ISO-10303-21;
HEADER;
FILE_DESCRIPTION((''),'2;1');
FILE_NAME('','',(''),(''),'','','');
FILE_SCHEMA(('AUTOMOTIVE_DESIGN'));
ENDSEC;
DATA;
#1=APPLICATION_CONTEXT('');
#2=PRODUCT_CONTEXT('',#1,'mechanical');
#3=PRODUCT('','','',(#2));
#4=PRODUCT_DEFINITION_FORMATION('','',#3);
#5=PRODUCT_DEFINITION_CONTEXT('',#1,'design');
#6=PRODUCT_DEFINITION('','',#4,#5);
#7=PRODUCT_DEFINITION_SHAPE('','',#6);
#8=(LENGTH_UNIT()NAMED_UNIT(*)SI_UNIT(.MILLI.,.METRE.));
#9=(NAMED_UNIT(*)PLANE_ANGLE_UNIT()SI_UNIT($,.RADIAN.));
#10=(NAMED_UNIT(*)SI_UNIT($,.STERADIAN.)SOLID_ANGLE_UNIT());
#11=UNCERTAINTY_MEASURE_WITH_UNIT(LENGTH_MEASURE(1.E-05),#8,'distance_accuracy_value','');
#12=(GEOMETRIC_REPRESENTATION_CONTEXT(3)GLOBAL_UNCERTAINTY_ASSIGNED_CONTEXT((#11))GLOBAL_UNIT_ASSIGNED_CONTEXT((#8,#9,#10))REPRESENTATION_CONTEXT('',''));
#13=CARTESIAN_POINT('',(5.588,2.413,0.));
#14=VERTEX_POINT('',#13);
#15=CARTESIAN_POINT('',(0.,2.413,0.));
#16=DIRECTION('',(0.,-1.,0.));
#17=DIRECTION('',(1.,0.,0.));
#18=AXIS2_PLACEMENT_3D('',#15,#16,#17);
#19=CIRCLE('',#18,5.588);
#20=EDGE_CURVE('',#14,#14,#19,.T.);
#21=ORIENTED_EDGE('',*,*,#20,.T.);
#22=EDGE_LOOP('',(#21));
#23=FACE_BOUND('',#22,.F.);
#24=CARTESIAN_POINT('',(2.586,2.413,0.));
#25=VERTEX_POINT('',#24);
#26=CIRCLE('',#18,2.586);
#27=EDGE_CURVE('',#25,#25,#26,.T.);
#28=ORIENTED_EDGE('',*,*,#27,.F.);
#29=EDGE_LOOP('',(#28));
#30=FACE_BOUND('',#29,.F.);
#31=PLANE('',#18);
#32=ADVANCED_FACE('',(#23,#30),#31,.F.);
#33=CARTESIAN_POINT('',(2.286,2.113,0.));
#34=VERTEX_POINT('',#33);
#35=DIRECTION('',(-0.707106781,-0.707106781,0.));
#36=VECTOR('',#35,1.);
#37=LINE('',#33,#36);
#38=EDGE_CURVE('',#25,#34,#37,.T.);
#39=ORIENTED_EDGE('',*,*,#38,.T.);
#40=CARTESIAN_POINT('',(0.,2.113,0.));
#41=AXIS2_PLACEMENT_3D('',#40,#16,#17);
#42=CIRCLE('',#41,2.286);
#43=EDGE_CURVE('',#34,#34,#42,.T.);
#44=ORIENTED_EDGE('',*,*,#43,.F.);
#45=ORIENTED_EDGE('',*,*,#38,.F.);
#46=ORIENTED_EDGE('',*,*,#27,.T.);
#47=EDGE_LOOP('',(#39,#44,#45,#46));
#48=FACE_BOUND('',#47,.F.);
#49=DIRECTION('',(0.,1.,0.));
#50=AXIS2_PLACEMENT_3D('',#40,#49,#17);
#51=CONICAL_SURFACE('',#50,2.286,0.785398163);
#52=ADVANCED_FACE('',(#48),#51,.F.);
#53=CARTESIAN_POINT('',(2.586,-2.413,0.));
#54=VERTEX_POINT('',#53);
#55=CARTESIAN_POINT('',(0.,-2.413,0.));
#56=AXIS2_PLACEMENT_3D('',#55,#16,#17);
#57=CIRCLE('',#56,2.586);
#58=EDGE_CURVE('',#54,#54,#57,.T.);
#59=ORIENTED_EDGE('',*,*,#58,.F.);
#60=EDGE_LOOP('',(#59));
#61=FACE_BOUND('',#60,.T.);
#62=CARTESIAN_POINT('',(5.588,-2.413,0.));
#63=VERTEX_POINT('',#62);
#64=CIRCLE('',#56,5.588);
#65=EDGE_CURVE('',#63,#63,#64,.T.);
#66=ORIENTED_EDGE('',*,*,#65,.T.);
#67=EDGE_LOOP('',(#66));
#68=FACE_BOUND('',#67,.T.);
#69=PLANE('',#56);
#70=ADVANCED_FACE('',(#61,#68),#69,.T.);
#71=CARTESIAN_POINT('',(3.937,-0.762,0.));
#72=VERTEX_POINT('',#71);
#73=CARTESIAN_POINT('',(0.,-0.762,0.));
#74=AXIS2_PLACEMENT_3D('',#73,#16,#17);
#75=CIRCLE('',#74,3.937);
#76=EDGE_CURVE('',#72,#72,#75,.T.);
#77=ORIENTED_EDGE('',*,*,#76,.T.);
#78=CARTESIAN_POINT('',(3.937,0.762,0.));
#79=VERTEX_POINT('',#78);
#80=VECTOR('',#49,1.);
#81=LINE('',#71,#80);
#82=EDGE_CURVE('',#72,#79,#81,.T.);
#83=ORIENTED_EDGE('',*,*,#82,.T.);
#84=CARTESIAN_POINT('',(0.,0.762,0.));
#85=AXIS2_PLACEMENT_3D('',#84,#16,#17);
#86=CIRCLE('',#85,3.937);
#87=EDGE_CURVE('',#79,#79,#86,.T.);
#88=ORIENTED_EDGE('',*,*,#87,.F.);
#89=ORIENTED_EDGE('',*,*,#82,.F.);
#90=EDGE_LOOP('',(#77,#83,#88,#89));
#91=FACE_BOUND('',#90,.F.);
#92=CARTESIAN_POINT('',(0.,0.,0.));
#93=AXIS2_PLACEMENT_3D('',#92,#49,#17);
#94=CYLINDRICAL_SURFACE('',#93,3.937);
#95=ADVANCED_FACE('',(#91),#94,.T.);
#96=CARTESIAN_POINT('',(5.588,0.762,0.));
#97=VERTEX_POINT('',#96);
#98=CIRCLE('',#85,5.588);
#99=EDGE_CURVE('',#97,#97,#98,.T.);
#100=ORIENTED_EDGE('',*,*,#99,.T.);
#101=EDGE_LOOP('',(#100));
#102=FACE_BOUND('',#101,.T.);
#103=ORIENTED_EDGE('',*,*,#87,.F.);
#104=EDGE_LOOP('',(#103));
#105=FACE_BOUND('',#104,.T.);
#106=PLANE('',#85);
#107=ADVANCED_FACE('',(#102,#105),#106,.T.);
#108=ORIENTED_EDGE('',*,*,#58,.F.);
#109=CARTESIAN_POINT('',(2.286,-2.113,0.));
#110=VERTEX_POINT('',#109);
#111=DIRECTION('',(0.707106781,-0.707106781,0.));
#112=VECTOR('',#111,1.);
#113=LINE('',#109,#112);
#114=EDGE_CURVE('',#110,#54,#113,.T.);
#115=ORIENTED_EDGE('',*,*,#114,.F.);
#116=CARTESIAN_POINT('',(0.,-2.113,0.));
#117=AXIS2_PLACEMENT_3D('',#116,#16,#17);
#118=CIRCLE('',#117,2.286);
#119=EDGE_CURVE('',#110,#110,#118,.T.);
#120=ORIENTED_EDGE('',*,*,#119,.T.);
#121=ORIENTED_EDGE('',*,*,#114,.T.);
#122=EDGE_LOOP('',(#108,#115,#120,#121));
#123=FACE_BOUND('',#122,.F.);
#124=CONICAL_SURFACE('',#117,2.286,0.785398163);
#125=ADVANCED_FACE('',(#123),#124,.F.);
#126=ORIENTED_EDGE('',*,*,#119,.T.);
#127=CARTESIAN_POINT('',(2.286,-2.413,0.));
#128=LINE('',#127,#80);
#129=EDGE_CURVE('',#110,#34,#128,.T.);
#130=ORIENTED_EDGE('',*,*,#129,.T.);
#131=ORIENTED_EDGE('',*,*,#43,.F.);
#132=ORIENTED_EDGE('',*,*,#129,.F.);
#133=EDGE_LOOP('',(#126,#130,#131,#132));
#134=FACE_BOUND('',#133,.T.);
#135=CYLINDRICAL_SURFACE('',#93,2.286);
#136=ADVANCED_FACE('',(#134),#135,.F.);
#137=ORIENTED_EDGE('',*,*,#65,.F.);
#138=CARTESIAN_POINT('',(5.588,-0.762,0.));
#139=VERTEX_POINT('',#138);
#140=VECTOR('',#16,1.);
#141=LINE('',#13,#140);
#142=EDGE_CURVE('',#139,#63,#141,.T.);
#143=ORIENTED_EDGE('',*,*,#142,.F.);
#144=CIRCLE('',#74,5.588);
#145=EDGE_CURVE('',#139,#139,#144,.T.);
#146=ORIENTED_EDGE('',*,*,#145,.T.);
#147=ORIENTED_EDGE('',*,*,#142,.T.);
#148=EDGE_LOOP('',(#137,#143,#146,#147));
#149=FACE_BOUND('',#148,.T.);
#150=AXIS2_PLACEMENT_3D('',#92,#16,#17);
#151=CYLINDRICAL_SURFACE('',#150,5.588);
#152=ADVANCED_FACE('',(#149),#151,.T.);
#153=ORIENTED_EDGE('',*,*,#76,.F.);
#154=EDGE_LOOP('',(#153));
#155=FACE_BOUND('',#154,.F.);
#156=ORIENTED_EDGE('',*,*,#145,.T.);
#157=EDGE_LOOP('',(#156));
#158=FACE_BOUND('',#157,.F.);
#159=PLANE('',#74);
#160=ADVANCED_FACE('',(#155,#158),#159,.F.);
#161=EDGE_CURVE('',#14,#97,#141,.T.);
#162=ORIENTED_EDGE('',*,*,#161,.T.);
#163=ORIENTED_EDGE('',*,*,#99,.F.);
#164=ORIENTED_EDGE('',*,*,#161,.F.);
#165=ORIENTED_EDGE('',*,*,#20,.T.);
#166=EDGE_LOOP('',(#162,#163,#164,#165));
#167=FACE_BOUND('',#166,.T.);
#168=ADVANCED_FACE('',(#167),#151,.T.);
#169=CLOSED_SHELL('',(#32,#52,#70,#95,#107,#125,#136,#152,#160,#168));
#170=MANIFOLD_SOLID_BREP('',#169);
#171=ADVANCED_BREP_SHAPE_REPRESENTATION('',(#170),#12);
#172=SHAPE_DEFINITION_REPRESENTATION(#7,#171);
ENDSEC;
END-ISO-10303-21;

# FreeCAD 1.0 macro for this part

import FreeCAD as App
import Part
import Sketcher
from FreeCAD import Vector
Q = App.Units.Quantity


def edges_at(feature, points):
    """Names of the edges that pass closest to the given points."""
    edges = feature.Shape.Edges
    near = lambda p: min(range(len(edges)), key=lambda i: edges[i].distToShape(Part.Vertex(*p))[0])
    return sorted({f"Edge{near(p) + 1}" for p in points})

doc = App.newDocument("Part")
body = doc.addObject("PartDesign::Body", "Body")

sketch1 = body.newObject("Sketcher::SketchObject", "Sketch")
sketch1.AttachmentSupport = (doc.getObject("XZ_Plane"), [""])
sketch1.MapMode = "FlatFace"
sketch1.addGeometry([
    Part.Circle(Vector(0, 0, 0), Vector(0, 0, 1), 5.6),
    Part.Circle(Vector(0, 0, 0), Vector(0, 0, 1), 2.3),
], False)
sketch1.addConstraint([
    Sketcher.Constraint("Coincident", 0, 3, -1, 1),
    Sketcher.Constraint("Coincident", 1, 3, -1, 1),
    Sketcher.Constraint("Diameter", 0, Q("0.44 in")),
    Sketcher.Constraint("Diameter", 1, Q("0.18 in")),
])
pad1 = body.newObject("PartDesign::Pad", "Pad")
pad1.Profile = sketch1
pad1.Length = Q("0.19 in")
pad1.Midplane = True

sketch2 = body.newObject("Sketcher::SketchObject", "Sketch001")
sketch2.AttachmentSupport = (doc.getObject("XZ_Plane"), [""])
sketch2.MapMode = "FlatFace"
sketch2.addGeometry([
    Part.Circle(Vector(0, 0, 0), Vector(0, 0, 1), 5.6),
    Part.Circle(Vector(0, 0, 0), Vector(0, 0, 1), 3.9),
], False)
sketch2.addConstraint([
    Sketcher.Constraint("Coincident", 0, 3, -1, 1),
    Sketcher.Constraint("Coincident", 1, 3, -1, 1),
    Sketcher.Constraint("Diameter", 0, Q("0.44 in")),
    Sketcher.Constraint("Diameter", 1, Q("0.31 in")),
])
pocket1 = body.newObject("PartDesign::Pocket", "Pocket")
pocket1.Profile = sketch2
pocket1.Length = Q("0.06 in")
pocket1.Midplane = True
doc.recompute()

chamfer = body.newObject("PartDesign::Chamfer", "Chamfer")
chamfer.Base = (pocket1, edges_at(pocket1, [(-2.286, -2.413, 0), (-2.286, 2.413, 0)]))
chamfer.Size = 0.3

doc.recompute()
